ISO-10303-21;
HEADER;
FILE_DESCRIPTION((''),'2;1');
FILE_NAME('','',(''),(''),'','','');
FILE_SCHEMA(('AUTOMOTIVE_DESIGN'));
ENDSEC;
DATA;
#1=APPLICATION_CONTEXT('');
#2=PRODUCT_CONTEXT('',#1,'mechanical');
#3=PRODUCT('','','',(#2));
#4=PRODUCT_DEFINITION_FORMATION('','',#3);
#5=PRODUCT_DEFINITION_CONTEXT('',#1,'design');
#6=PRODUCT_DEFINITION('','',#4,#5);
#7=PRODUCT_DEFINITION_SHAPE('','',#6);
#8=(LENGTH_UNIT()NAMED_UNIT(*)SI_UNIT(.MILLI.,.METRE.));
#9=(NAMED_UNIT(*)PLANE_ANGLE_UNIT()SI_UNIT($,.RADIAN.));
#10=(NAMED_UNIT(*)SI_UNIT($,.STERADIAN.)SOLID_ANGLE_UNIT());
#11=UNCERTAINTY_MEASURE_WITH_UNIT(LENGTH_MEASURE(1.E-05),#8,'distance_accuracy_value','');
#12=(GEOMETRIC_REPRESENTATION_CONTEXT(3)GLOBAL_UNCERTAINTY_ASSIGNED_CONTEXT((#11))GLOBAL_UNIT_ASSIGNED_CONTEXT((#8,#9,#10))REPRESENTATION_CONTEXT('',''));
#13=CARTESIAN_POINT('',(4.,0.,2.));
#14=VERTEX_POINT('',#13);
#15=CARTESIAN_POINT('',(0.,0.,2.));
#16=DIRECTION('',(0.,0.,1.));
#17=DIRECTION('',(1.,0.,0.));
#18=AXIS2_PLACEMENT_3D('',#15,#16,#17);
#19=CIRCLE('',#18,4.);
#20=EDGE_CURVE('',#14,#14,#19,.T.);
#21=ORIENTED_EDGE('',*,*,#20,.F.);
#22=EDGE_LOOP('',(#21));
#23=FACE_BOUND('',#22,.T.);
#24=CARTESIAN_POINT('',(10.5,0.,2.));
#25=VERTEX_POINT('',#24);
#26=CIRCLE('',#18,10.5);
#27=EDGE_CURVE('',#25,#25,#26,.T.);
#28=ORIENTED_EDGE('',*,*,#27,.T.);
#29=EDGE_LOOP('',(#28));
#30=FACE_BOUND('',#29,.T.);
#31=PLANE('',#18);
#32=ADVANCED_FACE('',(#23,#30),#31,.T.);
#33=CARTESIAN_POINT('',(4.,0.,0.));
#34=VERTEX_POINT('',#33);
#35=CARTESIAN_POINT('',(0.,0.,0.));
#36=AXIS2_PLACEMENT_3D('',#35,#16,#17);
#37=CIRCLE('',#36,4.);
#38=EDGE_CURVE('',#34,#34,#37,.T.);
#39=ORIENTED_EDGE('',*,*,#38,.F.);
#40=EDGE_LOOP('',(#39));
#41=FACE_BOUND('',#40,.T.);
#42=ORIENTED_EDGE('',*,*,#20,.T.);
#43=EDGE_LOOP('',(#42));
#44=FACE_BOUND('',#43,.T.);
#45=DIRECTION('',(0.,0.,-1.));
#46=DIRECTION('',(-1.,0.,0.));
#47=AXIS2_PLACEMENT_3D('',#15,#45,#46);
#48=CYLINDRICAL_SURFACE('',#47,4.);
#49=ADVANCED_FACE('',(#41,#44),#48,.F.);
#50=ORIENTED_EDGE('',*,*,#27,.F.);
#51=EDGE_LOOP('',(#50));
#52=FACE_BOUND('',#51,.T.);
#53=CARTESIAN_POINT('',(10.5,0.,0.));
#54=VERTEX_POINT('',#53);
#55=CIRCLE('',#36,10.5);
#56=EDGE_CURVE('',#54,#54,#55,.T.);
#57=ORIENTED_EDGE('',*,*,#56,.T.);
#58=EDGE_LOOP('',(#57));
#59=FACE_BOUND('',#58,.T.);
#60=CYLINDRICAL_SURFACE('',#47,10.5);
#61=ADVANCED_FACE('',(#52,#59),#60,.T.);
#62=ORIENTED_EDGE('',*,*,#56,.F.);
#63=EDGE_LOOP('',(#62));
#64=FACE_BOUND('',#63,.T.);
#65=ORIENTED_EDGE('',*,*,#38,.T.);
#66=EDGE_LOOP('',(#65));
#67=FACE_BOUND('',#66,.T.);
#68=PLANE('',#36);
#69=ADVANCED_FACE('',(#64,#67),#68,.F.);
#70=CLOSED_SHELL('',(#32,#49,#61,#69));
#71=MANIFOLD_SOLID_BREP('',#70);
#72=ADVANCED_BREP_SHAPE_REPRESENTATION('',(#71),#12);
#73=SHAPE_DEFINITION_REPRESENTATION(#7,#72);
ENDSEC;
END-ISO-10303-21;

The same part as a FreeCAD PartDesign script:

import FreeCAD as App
import Part
import Sketcher
from FreeCAD import Vector
Q = App.Units.Quantity

doc = App.newDocument("Part")
body = doc.addObject("PartDesign::Body", "Body")

sketch1 = body.newObject("Sketcher::SketchObject", "Sketch")
sketch1.AttachmentSupport = (doc.getObject("XY_Plane"), [""])
sketch1.MapMode = "FlatFace"
sketch1.addGeometry(Part.Circle(Vector(0, 0, 0), Vector(0, 0, 1), 10.5), False)
sketch1.addGeometry(Part.Circle(Vector(0, 0, 0), Vector(0, 0, 1), 4), False)
sketch1.addConstraint(Sketcher.Constraint("Coincident", 0, 3, -1, 1))
sketch1.addConstraint(Sketcher.Constraint("Coincident", 1, 3, -1, 1))
sketch1.addConstraint(Sketcher.Constraint("Diameter", 0, Q("21 mm")))
sketch1.addConstraint(Sketcher.Constraint("Diameter", 1, Q("8 mm")))
pad1 = body.newObject("PartDesign::Pad", "Pad")
pad1.Profile = sketch1
pad1.Length = 2

doc.recompute()
